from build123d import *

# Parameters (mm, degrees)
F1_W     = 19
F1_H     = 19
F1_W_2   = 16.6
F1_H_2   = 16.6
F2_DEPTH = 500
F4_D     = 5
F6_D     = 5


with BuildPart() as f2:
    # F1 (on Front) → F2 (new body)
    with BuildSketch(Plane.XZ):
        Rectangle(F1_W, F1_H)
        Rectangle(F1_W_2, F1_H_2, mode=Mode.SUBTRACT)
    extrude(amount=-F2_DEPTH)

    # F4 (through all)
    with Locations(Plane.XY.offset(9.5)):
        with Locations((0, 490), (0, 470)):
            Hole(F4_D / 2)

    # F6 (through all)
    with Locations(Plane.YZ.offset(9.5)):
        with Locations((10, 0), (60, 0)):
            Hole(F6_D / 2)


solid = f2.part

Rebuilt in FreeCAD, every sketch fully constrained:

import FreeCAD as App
import Part
import Sketcher


def add_polygon(sketch, points):
    """Adds a closed chain of lines whose ends are joined by coincident constraints."""
    first, n = sketch.GeometryCount, len(points)
    for a, b in zip(points, points[1:] + points[:1]):
        sketch.addGeometry(Part.LineSegment(App.Vector(*a, 0), App.Vector(*b, 0)), False)
    for i in range(n):
        sketch.addConstraint(Sketcher.Constraint("Coincident", first + i, 2, first + (i + 1) % n, 1))

doc = App.newDocument("Part")
body = doc.addObject("PartDesign::Body", "Body")

sketch1 = doc.addObject("Sketcher::SketchObject", "Sketch")
body.addObject(sketch1)
sketch1.AttachmentSupport = (doc.XZ_Plane, [""])
sketch1.MapMode = "FlatFace"
add_polygon(sketch1, [(-9.5, 9.5), (-9.5, -9.5), (9.5, -9.5), (9.5, 9.5)])
add_polygon(sketch1, [(8.3, -8.3), (-8.3, -8.3), (-8.3, 8.3), (8.3, 8.3)])
sketch1.addConstraint([
    Sketcher.Constraint("Vertical", 0),
    Sketcher.Constraint("Horizontal", 1),
    Sketcher.Constraint("Vertical", 2),
    Sketcher.Constraint("Horizontal", 3),
    Sketcher.Constraint("Horizontal", 4),
    Sketcher.Constraint("Vertical", 5),
    Sketcher.Constraint("Horizontal", 6),
    Sketcher.Constraint("Vertical", 7),
    Sketcher.Constraint("Symmetric", 0, 2, 2, 2, -1, 1),
    Sketcher.Constraint("Symmetric", 4, 2, 6, 2, -1, 1),
    Sketcher.Constraint("Equal", 3, 0),
    Sketcher.Constraint("Equal", 6, 5),
    Sketcher.Constraint("DistanceX", 1, 1, 1, 2, 19.0),
    Sketcher.Constraint("DistanceX", 4, 2, 4, 1, 16.6),
])
pad1 = doc.addObject("PartDesign::Pad", "Pad")
body.addObject(pad1)
pad1.Profile = sketch1
pad1.Length = 500
pad1.Reversed = True

sketch2 = doc.addObject("Sketcher::SketchObject", "Sketch001")
body.addObject(sketch2)
sketch2.AttachmentSupport = (doc.XY_Plane, [""])
sketch2.MapMode = "FlatFace"
sketch2.AttachmentOffset = App.Placement(App.Vector(0, 0, 9.5), App.Rotation())
sketch2.addGeometry([
    Part.Circle(App.Vector(0, 490, 0), App.Vector(0, 0, 1), 2.5),
    Part.Circle(App.Vector(0, 470, 0), App.Vector(0, 0, 1), 2.5),
], False)
sketch2.addConstraint([
    Sketcher.Constraint("Equal", 0, 1),
    Sketcher.Constraint("PointOnObject", 0, 3, -2),
    Sketcher.Constraint("PointOnObject", 1, 3, -2),
    Sketcher.Constraint("Diameter", 0, 5.0),
    Sketcher.Constraint("DistanceY", -1, 1, 0, 3, 490.0),
    Sketcher.Constraint("DistanceY", -1, 1, 1, 3, 470.0),
])
doc.recompute()
hole = doc.addObject("PartDesign::Hole", "Hole")
body.addObject(hole)
hole.Profile = sketch2
hole.ThreadType = "None"
hole.Diameter = 5
hole.DepthType = "ThroughAll"

sketch3 = doc.addObject("Sketcher::SketchObject", "Sketch002")
body.addObject(sketch3)
sketch3.AttachmentSupport = (doc.YZ_Plane, [""])
sketch3.MapMode = "FlatFace"
sketch3.AttachmentOffset = App.Placement(App.Vector(0, 0, 9.5), App.Rotation())
sketch3.addGeometry([
    Part.Circle(App.Vector(10, 0, 0), App.Vector(0, 0, 1), 2.5),
    Part.Circle(App.Vector(60, 0, 0), App.Vector(0, 0, 1), 2.5),
], False)
sketch3.addConstraint([
    Sketcher.Constraint("Equal", 0, 1),
    Sketcher.Constraint("PointOnObject", 0, 3, -1),
    Sketcher.Constraint("PointOnObject", 1, 3, -1),
    Sketcher.Constraint("Diameter", 0, 5.0),
    Sketcher.Constraint("DistanceX", -1, 1, 0, 3, 10.0),
    Sketcher.Constraint("DistanceX", -1, 1, 1, 3, 60.0),
])
doc.recompute()
hole2 = doc.addObject("PartDesign::Hole", "Hole001")
body.addObject(hole2)
hole2.Profile = sketch3
hole2.ThreadType = "None"
hole2.Diameter = 5
hole2.DepthType = "ThroughAll"

doc.recompute()
